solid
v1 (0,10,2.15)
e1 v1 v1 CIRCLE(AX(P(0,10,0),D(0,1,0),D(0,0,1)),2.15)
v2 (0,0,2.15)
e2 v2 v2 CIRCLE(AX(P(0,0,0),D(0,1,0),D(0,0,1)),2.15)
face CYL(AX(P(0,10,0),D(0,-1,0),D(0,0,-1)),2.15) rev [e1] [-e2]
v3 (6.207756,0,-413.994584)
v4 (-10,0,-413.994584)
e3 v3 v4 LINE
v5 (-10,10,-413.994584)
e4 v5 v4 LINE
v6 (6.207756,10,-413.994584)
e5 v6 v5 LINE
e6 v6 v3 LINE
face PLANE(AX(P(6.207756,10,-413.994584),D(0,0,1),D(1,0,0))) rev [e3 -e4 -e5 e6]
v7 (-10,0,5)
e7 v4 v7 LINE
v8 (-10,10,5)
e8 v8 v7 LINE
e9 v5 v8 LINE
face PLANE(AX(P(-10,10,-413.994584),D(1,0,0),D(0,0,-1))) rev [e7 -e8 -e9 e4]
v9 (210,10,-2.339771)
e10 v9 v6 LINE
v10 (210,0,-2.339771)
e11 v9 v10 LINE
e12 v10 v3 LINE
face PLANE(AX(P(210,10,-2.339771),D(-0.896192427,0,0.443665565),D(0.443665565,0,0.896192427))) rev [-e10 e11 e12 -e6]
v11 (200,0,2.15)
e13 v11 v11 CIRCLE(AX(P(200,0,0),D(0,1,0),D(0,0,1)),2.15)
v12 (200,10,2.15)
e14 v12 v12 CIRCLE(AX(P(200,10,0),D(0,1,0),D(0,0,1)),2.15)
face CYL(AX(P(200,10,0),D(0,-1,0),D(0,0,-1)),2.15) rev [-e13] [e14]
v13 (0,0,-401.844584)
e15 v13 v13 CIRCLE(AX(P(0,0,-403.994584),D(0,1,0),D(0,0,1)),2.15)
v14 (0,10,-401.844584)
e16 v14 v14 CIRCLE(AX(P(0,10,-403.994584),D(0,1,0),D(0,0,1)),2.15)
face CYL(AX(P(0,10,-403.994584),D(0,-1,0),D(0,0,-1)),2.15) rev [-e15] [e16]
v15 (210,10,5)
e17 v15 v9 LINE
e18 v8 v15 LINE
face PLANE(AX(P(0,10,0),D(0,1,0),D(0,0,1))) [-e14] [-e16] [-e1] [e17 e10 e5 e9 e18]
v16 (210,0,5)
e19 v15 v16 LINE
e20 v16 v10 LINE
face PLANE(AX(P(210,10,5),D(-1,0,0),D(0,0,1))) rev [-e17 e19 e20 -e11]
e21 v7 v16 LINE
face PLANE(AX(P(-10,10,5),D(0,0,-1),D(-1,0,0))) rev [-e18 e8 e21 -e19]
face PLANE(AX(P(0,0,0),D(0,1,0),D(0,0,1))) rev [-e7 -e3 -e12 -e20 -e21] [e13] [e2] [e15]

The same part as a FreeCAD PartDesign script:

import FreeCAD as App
import Part
import Sketcher

V = App.Vector
Q = App.Units.Quantity

doc = App.newDocument("Part")
body = doc.addObject("PartDesign::Body", "Body")

sketch1 = body.newObject("Sketcher::SketchObject", "Sketch")
sketch1.AttachmentSupport = (doc.getObject("XZ_Plane"), [""])
sketch1.MapMode = "FlatFace"
sketch1.addGeometry([
    Part.LineSegment(V(-10, -414, 0), V(-10, 5, 0)),
    Part.LineSegment(V(-10, 5, 0), V(210, 5, 0)),
    Part.LineSegment(V(210, 5, 0), V(210, -2.3, 0)),
    Part.LineSegment(V(210, -2.3, 0), V(6.2, -414, 0)),
    Part.LineSegment(V(6.2, -414, 0), V(-10, -414, 0)),
    Part.Circle(V(0, 0, 0), V(0, 0, 1), 2.1),
    Part.Circle(V(200, 0, 0), V(0, 0, 1), 2.1),
    Part.Circle(V(0, -404, 0), V(0, 0, 1), 2.1),
], False)
sketch1.addConstraint([
    Sketcher.Constraint("Coincident", 0, 2, 1, 1),
    Sketcher.Constraint("Coincident", 1, 2, 2, 1),
    Sketcher.Constraint("Coincident", 2, 2, 3, 1),
    Sketcher.Constraint("Coincident", 3, 2, 4, 1),
    Sketcher.Constraint("Coincident", 4, 2, 0, 1),
    Sketcher.Constraint("Vertical", 0),
    Sketcher.Constraint("Horizontal", 1),
    Sketcher.Constraint("Vertical", 2),
    Sketcher.Constraint("Horizontal", 4),
    Sketcher.Constraint("Coincident", 5, 3, -1, 1),
    Sketcher.Constraint("Equal", 5, 6),
    Sketcher.Constraint("Equal", 6, 7),
    Sketcher.Constraint("PointOnObject", 6, 3, -1),
    Sketcher.Constraint("PointOnObject", 7, 3, -2),
    Sketcher.Constraint("Diameter", 5, Q("4.3 mm")),
    Sketcher.Constraint("DistanceX", 1, 1, 1, 2, Q("220 mm")),
    Sketcher.Constraint("DistanceX", -1, 1, 6, 3, Q("200 mm")),
    Sketcher.Constraint("DistanceX", 0, 2, -1, 1, Q("10 mm")),
    Sketcher.Constraint("DistanceY", -1, 1, 0, 2, Q("5 mm")),
    Sketcher.Constraint("DistanceY", 3, 2, 7, 3, Q("10 mm")),
    Sketcher.Constraint("DistanceY", 2, 2, 2, 1, Q("7.339771 mm")),
    Sketcher.Constraint("DistanceX", 4, 2, 4, 1, Q("16.207756 mm")),
    Sketcher.Constraint("DistanceY", 0, 1, 0, 2, Q("418.994584 mm")),
])
pad1 = body.newObject("PartDesign::Pad", "Pad")
pad1.Profile = sketch1
pad1.Length = 10
pad1.Reversed = True

doc.recompute()
